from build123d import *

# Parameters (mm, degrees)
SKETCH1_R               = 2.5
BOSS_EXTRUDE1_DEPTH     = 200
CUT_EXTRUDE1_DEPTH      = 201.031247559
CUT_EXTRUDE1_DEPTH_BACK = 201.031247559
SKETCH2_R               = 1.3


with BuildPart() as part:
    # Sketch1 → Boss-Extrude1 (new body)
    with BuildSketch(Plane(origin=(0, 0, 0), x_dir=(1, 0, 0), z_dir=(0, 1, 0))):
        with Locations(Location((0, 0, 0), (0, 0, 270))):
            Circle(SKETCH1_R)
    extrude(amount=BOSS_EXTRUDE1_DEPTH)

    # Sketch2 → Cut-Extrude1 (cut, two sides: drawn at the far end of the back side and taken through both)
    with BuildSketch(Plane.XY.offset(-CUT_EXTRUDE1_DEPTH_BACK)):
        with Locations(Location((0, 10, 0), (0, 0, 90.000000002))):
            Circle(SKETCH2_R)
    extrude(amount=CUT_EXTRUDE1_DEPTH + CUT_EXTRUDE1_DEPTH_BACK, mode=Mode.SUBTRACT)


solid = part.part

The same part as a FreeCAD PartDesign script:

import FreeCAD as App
import Part
import Sketcher

V = App.Vector

doc = App.newDocument("Part")
body = doc.addObject("PartDesign::Body", "Body")

sketch1 = body.newObject("Sketcher::SketchObject", "Sketch")
sketch1.AttachmentSupport = (doc.getObject("XZ_Plane"), [""])
sketch1.MapMode = "FlatFace"
sketch1.addGeometry(Part.Circle(V(0, 0, 0), V(0, 0, 1), 2.5), False)
sketch1.addConstraint(Sketcher.Constraint("Coincident", 0, 3, -1, 1))
sketch1.addConstraint(Sketcher.Constraint("Diameter", 0, 5.0))
pad1 = body.newObject("PartDesign::Pad", "Pad")
pad1.Profile = sketch1
pad1.Length = 200
pad1.Reversed = True

sketch2 = body.newObject("Sketcher::SketchObject", "Sketch001")
sketch2.AttachmentSupport = (doc.getObject("XY_Plane"), [""])
sketch2.MapMode = "FlatFace"
sketch2.addGeometry(Part.Circle(V(0, 10, 0), V(0, 0, 1), 1.3), False)
sketch2.addConstraint(Sketcher.Constraint("PointOnObject", 0, 3, -2))
sketch2.addConstraint(Sketcher.Constraint("Diameter", 0, 2.6))
sketch2.addConstraint(Sketcher.Constraint("DistanceY", -1, 1, 0, 3, 10.0))
pocket1 = body.newObject("PartDesign::Pocket", "Pocket")
pocket1.Profile = sketch2
pocket1.Type = "ThroughAll"
pocket1.Midplane = True

doc.recompute()
